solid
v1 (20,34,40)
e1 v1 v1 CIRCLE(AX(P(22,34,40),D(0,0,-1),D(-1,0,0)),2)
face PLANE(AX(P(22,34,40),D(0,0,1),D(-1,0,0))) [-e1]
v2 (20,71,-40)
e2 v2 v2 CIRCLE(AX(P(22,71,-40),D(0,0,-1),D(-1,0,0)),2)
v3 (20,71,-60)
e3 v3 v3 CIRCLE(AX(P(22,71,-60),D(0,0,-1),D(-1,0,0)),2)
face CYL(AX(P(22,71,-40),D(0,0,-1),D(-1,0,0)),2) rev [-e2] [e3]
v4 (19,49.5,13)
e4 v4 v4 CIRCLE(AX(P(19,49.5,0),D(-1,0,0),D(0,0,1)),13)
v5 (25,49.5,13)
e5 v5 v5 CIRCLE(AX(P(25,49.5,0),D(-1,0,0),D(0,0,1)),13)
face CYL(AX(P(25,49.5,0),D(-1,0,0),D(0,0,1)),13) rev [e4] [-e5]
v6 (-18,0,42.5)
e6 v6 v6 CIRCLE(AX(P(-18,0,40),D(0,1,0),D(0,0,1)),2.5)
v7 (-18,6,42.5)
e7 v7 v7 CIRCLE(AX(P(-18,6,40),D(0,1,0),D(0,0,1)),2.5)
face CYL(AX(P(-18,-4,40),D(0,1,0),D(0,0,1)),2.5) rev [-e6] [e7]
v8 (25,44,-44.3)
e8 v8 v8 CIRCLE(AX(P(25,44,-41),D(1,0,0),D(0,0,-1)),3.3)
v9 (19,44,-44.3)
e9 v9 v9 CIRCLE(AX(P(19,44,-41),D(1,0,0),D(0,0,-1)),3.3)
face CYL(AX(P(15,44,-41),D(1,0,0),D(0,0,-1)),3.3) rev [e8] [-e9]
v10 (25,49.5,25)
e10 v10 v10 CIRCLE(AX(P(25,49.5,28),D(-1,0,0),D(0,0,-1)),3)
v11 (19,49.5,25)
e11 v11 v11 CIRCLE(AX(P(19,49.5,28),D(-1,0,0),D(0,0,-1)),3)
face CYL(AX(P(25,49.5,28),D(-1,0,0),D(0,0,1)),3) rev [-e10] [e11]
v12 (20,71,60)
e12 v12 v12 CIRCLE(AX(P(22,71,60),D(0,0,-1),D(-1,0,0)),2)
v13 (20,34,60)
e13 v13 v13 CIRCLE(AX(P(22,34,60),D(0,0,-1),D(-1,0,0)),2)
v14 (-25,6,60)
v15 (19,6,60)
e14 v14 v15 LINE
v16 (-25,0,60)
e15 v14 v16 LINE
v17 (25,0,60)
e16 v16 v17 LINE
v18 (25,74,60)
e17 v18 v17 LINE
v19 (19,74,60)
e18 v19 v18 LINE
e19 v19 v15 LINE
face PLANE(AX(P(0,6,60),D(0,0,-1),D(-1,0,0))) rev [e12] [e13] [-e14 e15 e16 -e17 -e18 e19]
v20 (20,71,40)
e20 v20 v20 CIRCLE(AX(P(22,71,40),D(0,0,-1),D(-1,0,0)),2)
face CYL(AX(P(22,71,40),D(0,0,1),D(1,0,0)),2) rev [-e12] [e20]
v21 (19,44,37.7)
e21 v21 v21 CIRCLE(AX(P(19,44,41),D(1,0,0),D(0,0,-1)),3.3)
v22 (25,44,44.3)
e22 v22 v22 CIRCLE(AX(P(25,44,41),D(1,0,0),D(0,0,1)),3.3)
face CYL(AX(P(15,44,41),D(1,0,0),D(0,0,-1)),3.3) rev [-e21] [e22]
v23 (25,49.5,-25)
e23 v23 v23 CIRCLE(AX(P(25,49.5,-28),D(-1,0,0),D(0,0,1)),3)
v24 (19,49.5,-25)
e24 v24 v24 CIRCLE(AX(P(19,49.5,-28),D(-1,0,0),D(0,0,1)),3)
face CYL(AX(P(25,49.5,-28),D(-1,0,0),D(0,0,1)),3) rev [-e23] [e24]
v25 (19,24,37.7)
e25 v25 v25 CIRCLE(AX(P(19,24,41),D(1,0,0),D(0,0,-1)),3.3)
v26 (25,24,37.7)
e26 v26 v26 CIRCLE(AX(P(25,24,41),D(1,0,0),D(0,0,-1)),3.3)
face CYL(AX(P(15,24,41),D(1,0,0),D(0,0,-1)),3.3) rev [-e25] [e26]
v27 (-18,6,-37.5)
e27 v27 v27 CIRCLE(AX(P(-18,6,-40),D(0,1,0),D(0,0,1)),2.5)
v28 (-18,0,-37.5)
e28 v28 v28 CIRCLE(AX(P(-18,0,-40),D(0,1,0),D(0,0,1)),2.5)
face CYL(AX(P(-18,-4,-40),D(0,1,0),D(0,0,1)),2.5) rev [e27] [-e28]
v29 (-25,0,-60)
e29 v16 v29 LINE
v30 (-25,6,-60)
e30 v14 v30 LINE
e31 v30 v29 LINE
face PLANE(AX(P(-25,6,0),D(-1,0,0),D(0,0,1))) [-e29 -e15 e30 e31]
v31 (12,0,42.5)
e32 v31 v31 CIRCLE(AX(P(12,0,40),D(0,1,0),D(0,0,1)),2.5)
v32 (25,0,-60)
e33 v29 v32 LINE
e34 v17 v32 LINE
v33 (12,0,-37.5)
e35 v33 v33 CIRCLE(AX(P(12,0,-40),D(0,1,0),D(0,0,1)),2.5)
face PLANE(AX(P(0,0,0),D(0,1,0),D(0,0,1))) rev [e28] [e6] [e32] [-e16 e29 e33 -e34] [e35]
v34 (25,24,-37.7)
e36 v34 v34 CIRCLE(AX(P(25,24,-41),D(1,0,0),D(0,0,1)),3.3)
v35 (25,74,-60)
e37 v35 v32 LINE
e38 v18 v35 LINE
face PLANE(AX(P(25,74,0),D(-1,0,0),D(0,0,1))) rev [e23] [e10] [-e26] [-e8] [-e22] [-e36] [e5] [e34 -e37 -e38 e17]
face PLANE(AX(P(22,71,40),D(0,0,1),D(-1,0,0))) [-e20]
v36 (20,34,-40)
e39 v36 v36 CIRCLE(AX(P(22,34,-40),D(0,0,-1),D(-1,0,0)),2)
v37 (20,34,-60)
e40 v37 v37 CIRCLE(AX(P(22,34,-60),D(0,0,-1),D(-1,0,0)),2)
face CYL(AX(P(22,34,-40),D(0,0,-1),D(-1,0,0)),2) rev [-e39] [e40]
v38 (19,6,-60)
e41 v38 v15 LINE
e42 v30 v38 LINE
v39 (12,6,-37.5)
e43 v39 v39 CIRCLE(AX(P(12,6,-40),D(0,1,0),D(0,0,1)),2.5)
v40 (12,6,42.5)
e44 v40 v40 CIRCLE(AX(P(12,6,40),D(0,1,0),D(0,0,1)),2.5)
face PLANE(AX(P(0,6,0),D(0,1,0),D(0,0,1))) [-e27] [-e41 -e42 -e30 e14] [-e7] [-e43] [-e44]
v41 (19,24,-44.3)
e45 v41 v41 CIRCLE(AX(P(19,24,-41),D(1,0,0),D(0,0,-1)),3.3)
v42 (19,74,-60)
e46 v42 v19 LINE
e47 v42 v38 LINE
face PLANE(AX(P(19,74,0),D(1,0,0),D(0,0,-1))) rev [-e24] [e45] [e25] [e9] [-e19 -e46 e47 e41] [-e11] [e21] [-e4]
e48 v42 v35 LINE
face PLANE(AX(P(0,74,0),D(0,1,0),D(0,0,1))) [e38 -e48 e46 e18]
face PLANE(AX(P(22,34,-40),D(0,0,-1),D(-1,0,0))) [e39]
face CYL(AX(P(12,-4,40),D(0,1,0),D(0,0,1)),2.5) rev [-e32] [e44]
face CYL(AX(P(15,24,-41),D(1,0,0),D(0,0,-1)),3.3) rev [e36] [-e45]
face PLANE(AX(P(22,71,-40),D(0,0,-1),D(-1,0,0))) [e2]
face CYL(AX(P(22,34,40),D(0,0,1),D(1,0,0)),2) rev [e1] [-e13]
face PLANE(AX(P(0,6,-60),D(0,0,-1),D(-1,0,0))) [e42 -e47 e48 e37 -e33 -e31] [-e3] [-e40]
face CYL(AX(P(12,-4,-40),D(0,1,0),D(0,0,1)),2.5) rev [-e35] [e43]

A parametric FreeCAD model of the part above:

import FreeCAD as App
import Part
import Sketcher
from FreeCAD import Vector
Q = App.Units.Quantity


def add_polygon(sketch, points):
    """Adds a closed chain of lines whose ends are joined by coincident constraints."""
    first, n = sketch.GeometryCount, len(points)
    for a, b in zip(points, points[1:] + points[:1]):
        sketch.addGeometry(Part.LineSegment(App.Vector(*a, 0), App.Vector(*b, 0)), False)
    for i in range(n):
        sketch.addConstraint(Sketcher.Constraint("Coincident", first + i, 2, first + (i + 1) % n, 1))

doc = App.newDocument("Part")
body = doc.addObject("PartDesign::Body", "Body")

# Sketch on XZ plane
sketch1 = body.newObject("Sketcher::SketchObject", "Sketch")
sketch1.AttachmentSupport = (doc.getObject("XZ_Plane"), [""])
sketch1.MapMode = "FlatFace"
add_polygon(sketch1, [(-25, -60), (-25, 60), (19, 60), (19, -60)])  # lines 0-3
sketch1.addConstraint(Sketcher.Constraint("Vertical", 0))
sketch1.addConstraint(Sketcher.Constraint("Horizontal", 1))
sketch1.addConstraint(Sketcher.Constraint("Vertical", 2))
sketch1.addConstraint(Sketcher.Constraint("Horizontal", 3))
sketch1.addConstraint(Sketcher.Constraint("DistanceX", 1, 1, 1, 2, Q("44 mm")))
sketch1.addConstraint(Sketcher.Constraint("DistanceY", 0, 1, 0, 2, Q("120 mm")))
sketch1.addConstraint(Sketcher.Constraint("DistanceX", 0, 2, -1, 1, Q("25 mm")))
sketch1.addConstraint(Sketcher.Constraint("DistanceY", -1, 1, 0, 2, Q("60 mm")))
pad1 = body.newObject("PartDesign::Pad", "Pad")
pad1.Profile = sketch1
pad1.Length = 6
pad1.Reversed = True

# Sketch on XZ plane
sketch2 = body.newObject("Sketcher::SketchObject", "Sketch001")
sketch2.AttachmentSupport = (doc.getObject("XZ_Plane"), [""])
sketch2.MapMode = "FlatFace"
add_polygon(sketch2, [(19, -60), (19, 60), (25, 60), (25, -60)])  # lines 0-3
sketch2.addConstraint(Sketcher.Constraint("Vertical", 0))
sketch2.addConstraint(Sketcher.Constraint("Horizontal", 1))
sketch2.addConstraint(Sketcher.Constraint("Vertical", 2))
sketch2.addConstraint(Sketcher.Constraint("Horizontal", 3))
sketch2.addConstraint(Sketcher.Constraint("DistanceX", 1, 1, 1, 2, Q("6 mm")))
sketch2.addConstraint(Sketcher.Constraint("DistanceY", 0, 1, 0, 2, Q("120 mm")))
sketch2.addConstraint(Sketcher.Constraint("DistanceX", -1, 1, 0, 2, Q("19 mm")))
sketch2.addConstraint(Sketcher.Constraint("DistanceY", -1, 1, 0, 2, Q("60 mm")))
pad2 = body.newObject("PartDesign::Pad", "Pad001")
pad2.Profile = sketch2
pad2.Length = 74
pad2.Reversed = True

# Sketch on YZ plane
sketch3 = body.newObject("Sketcher::SketchObject", "Sketch002")
sketch3.AttachmentSupport = (doc.getObject("YZ_Plane"), [""])
sketch3.MapMode = "FlatFace"
sketch3.AttachmentOffset = App.Placement(Vector(0, 0, 19), App.Rotation())
sketch3.addGeometry(Part.Circle(Vector(49.5, 0, 0), Vector(0, 0, 1), 13), False)
sketch3.addGeometry(Part.Circle(Vector(49.5, -28, 0), Vector(0, 0, 1), 3), False)
sketch3.addGeometry(Part.Circle(Vector(49.5, 28, 0), Vector(0, 0, 1), 3), False)
sketch3.addConstraint(Sketcher.Constraint("Equal", 1, 2))
sketch3.addConstraint(Sketcher.Constraint("Symmetric", 1, 3, 2, 3, -1))
sketch3.addConstraint(Sketcher.Constraint("PointOnObject", 0, 3, -1))
sketch3.addConstraint(Sketcher.Constraint("Vertical", 0, 3, 1, 3))
sketch3.addConstraint(Sketcher.Constraint("Diameter", 0, Q("26 mm")))
sketch3.addConstraint(Sketcher.Constraint("Diameter", 1, Q("6 mm")))
sketch3.addConstraint(Sketcher.Constraint("DistanceY", 1, 3, -1, 1, Q("28 mm")))
sketch3.addConstraint(Sketcher.Constraint("DistanceX", -1, 1, 0, 3, Q("49.5 mm")))
pocket1 = body.newObject("PartDesign::Pocket", "Pocket")
pocket1.Profile = sketch3
pocket1.Type = "ThroughAll"
pocket1.Reversed = True

# Sketch on XZ plane
sketch4 = body.newObject("Sketcher::SketchObject", "Sketch003")
sketch4.AttachmentSupport = (doc.getObject("XZ_Plane"), [""])
sketch4.MapMode = "FlatFace"
sketch4.AttachmentOffset = App.Placement(Vector(0, 0, -6), App.Rotation())
sketch4.addGeometry(Part.Circle(Vector(-18, -40, 0), Vector(0, 0, 1), 2.5), False)
sketch4.addGeometry(Part.Circle(Vector(12, -40, 0), Vector(0, 0, 1), 2.5), False)
sketch4.addGeometry(Part.Circle(Vector(-18, 40, 0), Vector(0, 0, 1), 2.5), False)
sketch4.addGeometry(Part.Circle(Vector(12, 40, 0), Vector(0, 0, 1), 2.5), False)
sketch4.addConstraint(Sketcher.Constraint("Equal", 0, 1))
sketch4.addConstraint(Sketcher.Constraint("Equal", 1, 2))
sketch4.addConstraint(Sketcher.Constraint("Equal", 2, 3))
sketch4.addConstraint(Sketcher.Constraint("Symmetric", 0, 3, 2, 3, -1))
sketch4.addConstraint(Sketcher.Constraint("Symmetric", 1, 3, 3, 3, -1))
sketch4.addConstraint(Sketcher.Constraint("Horizontal", 0, 3, 1, 3))
sketch4.addConstraint(Sketcher.Constraint("Diameter", 0, Q("5 mm")))
sketch4.addConstraint(Sketcher.Constraint("DistanceX", 0, 3, -1, 1, Q("18 mm")))
sketch4.addConstraint(Sketcher.Constraint("DistanceY", 0, 3, -1, 1, Q("40 mm")))
sketch4.addConstraint(Sketcher.Constraint("DistanceX", -1, 1, 1, 3, Q("12 mm")))
pocket2 = body.newObject("PartDesign::Pocket", "Pocket001")
pocket2.Profile = sketch4
pocket2.Length = 10
pocket2.Reversed = True

# Sketch on XY plane
sketch5 = body.newObject("Sketcher::SketchObject", "Sketch004")
sketch5.AttachmentSupport = (doc.getObject("XY_Plane"), [""])
sketch5.MapMode = "FlatFace"
sketch5.AttachmentOffset = App.Placement(Vector(0, 0, -60), App.Rotation())
sketch5.addGeometry(Part.Circle(Vector(22, 34, 0), Vector(0, 0, 1), 2), False)
sketch5.addGeometry(Part.Circle(Vector(22, 71, 0), Vector(0, 0, 1), 2), False)
sketch5.addConstraint(Sketcher.Constraint("Equal", 0, 1))
sketch5.addConstraint(Sketcher.Constraint("Vertical", 0, 3, 1, 3))
sketch5.addConstraint(Sketcher.Constraint("Diameter", 0, Q("4 mm")))
sketch5.addConstraint(Sketcher.Constraint("DistanceX", -1, 1, 0, 3, Q("22 mm")))
sketch5.addConstraint(Sketcher.Constraint("DistanceY", -1, 1, 0, 3, Q("34 mm")))
sketch5.addConstraint(Sketcher.Constraint("DistanceY", -1, 1, 1, 3, Q("71 mm")))
pocket3 = body.newObject("PartDesign::Pocket", "Pocket002")
pocket3.Profile = sketch5
pocket3.Length = 20
pocket3.Reversed = True
doc.recompute()

mirrored = body.newObject("PartDesign::Mirrored", "Mirrored")
mirrored.Originals = [pocket3]
mirrored.MirrorPlane = (doc.getObject("XY_Plane"), [""])
body.Tip = mirrored

# Sketch on YZ plane
sketch6 = body.newObject("Sketcher::SketchObject", "Sketch005")
sketch6.AttachmentSupport = (doc.getObject("YZ_Plane"), [""])
sketch6.MapMode = "FlatFace"
sketch6.AttachmentOffset = App.Placement(Vector(0, 0, 25), App.Rotation())
sketch6.addGeometry(Part.Circle(Vector(44, -41, 0), Vector(0, 0, 1), 3.3), False)
sketch6.addGeometry(Part.Circle(Vector(24, -41, 0), Vector(0, 0, 1), 3.3), False)
sketch6.addGeometry(Part.Circle(Vector(24, 41, 0), Vector(0, 0, 1), 3.3), False)
sketch6.addGeometry(Part.Circle(Vector(44, 41, 0), Vector(0, 0, 1), 3.3), False)
sketch6.addConstraint(Sketcher.Constraint("Equal", 0, 1))
sketch6.addConstraint(Sketcher.Constraint("Equal", 1, 2))
sketch6.addConstraint(Sketcher.Constraint("Equal", 2, 3))
sketch6.addConstraint(Sketcher.Constraint("Symmetric", 1, 3, 2, 3, -1))
sketch6.addConstraint(Sketcher.Constraint("Symmetric", 0, 3, 3, 3, -1))
sketch6.addConstraint(Sketcher.Constraint("Horizontal", 0, 3, 1, 3))
sketch6.addConstraint(Sketcher.Constraint("Diameter", 0, Q("6.6 mm")))
sketch6.addConstraint(Sketcher.Constraint("DistanceX", -1, 1, 0, 3, Q("44 mm")))
sketch6.addConstraint(Sketcher.Constraint("DistanceY", 0, 3, -1, 1, Q("41 mm")))
sketch6.addConstraint(Sketcher.Constraint("DistanceX", -1, 1, 1, 3, Q("24 mm")))
pocket4 = body.newObject("PartDesign::Pocket", "Pocket003")
pocket4.Profile = sketch6
pocket4.Length = 10

doc.recompute()
